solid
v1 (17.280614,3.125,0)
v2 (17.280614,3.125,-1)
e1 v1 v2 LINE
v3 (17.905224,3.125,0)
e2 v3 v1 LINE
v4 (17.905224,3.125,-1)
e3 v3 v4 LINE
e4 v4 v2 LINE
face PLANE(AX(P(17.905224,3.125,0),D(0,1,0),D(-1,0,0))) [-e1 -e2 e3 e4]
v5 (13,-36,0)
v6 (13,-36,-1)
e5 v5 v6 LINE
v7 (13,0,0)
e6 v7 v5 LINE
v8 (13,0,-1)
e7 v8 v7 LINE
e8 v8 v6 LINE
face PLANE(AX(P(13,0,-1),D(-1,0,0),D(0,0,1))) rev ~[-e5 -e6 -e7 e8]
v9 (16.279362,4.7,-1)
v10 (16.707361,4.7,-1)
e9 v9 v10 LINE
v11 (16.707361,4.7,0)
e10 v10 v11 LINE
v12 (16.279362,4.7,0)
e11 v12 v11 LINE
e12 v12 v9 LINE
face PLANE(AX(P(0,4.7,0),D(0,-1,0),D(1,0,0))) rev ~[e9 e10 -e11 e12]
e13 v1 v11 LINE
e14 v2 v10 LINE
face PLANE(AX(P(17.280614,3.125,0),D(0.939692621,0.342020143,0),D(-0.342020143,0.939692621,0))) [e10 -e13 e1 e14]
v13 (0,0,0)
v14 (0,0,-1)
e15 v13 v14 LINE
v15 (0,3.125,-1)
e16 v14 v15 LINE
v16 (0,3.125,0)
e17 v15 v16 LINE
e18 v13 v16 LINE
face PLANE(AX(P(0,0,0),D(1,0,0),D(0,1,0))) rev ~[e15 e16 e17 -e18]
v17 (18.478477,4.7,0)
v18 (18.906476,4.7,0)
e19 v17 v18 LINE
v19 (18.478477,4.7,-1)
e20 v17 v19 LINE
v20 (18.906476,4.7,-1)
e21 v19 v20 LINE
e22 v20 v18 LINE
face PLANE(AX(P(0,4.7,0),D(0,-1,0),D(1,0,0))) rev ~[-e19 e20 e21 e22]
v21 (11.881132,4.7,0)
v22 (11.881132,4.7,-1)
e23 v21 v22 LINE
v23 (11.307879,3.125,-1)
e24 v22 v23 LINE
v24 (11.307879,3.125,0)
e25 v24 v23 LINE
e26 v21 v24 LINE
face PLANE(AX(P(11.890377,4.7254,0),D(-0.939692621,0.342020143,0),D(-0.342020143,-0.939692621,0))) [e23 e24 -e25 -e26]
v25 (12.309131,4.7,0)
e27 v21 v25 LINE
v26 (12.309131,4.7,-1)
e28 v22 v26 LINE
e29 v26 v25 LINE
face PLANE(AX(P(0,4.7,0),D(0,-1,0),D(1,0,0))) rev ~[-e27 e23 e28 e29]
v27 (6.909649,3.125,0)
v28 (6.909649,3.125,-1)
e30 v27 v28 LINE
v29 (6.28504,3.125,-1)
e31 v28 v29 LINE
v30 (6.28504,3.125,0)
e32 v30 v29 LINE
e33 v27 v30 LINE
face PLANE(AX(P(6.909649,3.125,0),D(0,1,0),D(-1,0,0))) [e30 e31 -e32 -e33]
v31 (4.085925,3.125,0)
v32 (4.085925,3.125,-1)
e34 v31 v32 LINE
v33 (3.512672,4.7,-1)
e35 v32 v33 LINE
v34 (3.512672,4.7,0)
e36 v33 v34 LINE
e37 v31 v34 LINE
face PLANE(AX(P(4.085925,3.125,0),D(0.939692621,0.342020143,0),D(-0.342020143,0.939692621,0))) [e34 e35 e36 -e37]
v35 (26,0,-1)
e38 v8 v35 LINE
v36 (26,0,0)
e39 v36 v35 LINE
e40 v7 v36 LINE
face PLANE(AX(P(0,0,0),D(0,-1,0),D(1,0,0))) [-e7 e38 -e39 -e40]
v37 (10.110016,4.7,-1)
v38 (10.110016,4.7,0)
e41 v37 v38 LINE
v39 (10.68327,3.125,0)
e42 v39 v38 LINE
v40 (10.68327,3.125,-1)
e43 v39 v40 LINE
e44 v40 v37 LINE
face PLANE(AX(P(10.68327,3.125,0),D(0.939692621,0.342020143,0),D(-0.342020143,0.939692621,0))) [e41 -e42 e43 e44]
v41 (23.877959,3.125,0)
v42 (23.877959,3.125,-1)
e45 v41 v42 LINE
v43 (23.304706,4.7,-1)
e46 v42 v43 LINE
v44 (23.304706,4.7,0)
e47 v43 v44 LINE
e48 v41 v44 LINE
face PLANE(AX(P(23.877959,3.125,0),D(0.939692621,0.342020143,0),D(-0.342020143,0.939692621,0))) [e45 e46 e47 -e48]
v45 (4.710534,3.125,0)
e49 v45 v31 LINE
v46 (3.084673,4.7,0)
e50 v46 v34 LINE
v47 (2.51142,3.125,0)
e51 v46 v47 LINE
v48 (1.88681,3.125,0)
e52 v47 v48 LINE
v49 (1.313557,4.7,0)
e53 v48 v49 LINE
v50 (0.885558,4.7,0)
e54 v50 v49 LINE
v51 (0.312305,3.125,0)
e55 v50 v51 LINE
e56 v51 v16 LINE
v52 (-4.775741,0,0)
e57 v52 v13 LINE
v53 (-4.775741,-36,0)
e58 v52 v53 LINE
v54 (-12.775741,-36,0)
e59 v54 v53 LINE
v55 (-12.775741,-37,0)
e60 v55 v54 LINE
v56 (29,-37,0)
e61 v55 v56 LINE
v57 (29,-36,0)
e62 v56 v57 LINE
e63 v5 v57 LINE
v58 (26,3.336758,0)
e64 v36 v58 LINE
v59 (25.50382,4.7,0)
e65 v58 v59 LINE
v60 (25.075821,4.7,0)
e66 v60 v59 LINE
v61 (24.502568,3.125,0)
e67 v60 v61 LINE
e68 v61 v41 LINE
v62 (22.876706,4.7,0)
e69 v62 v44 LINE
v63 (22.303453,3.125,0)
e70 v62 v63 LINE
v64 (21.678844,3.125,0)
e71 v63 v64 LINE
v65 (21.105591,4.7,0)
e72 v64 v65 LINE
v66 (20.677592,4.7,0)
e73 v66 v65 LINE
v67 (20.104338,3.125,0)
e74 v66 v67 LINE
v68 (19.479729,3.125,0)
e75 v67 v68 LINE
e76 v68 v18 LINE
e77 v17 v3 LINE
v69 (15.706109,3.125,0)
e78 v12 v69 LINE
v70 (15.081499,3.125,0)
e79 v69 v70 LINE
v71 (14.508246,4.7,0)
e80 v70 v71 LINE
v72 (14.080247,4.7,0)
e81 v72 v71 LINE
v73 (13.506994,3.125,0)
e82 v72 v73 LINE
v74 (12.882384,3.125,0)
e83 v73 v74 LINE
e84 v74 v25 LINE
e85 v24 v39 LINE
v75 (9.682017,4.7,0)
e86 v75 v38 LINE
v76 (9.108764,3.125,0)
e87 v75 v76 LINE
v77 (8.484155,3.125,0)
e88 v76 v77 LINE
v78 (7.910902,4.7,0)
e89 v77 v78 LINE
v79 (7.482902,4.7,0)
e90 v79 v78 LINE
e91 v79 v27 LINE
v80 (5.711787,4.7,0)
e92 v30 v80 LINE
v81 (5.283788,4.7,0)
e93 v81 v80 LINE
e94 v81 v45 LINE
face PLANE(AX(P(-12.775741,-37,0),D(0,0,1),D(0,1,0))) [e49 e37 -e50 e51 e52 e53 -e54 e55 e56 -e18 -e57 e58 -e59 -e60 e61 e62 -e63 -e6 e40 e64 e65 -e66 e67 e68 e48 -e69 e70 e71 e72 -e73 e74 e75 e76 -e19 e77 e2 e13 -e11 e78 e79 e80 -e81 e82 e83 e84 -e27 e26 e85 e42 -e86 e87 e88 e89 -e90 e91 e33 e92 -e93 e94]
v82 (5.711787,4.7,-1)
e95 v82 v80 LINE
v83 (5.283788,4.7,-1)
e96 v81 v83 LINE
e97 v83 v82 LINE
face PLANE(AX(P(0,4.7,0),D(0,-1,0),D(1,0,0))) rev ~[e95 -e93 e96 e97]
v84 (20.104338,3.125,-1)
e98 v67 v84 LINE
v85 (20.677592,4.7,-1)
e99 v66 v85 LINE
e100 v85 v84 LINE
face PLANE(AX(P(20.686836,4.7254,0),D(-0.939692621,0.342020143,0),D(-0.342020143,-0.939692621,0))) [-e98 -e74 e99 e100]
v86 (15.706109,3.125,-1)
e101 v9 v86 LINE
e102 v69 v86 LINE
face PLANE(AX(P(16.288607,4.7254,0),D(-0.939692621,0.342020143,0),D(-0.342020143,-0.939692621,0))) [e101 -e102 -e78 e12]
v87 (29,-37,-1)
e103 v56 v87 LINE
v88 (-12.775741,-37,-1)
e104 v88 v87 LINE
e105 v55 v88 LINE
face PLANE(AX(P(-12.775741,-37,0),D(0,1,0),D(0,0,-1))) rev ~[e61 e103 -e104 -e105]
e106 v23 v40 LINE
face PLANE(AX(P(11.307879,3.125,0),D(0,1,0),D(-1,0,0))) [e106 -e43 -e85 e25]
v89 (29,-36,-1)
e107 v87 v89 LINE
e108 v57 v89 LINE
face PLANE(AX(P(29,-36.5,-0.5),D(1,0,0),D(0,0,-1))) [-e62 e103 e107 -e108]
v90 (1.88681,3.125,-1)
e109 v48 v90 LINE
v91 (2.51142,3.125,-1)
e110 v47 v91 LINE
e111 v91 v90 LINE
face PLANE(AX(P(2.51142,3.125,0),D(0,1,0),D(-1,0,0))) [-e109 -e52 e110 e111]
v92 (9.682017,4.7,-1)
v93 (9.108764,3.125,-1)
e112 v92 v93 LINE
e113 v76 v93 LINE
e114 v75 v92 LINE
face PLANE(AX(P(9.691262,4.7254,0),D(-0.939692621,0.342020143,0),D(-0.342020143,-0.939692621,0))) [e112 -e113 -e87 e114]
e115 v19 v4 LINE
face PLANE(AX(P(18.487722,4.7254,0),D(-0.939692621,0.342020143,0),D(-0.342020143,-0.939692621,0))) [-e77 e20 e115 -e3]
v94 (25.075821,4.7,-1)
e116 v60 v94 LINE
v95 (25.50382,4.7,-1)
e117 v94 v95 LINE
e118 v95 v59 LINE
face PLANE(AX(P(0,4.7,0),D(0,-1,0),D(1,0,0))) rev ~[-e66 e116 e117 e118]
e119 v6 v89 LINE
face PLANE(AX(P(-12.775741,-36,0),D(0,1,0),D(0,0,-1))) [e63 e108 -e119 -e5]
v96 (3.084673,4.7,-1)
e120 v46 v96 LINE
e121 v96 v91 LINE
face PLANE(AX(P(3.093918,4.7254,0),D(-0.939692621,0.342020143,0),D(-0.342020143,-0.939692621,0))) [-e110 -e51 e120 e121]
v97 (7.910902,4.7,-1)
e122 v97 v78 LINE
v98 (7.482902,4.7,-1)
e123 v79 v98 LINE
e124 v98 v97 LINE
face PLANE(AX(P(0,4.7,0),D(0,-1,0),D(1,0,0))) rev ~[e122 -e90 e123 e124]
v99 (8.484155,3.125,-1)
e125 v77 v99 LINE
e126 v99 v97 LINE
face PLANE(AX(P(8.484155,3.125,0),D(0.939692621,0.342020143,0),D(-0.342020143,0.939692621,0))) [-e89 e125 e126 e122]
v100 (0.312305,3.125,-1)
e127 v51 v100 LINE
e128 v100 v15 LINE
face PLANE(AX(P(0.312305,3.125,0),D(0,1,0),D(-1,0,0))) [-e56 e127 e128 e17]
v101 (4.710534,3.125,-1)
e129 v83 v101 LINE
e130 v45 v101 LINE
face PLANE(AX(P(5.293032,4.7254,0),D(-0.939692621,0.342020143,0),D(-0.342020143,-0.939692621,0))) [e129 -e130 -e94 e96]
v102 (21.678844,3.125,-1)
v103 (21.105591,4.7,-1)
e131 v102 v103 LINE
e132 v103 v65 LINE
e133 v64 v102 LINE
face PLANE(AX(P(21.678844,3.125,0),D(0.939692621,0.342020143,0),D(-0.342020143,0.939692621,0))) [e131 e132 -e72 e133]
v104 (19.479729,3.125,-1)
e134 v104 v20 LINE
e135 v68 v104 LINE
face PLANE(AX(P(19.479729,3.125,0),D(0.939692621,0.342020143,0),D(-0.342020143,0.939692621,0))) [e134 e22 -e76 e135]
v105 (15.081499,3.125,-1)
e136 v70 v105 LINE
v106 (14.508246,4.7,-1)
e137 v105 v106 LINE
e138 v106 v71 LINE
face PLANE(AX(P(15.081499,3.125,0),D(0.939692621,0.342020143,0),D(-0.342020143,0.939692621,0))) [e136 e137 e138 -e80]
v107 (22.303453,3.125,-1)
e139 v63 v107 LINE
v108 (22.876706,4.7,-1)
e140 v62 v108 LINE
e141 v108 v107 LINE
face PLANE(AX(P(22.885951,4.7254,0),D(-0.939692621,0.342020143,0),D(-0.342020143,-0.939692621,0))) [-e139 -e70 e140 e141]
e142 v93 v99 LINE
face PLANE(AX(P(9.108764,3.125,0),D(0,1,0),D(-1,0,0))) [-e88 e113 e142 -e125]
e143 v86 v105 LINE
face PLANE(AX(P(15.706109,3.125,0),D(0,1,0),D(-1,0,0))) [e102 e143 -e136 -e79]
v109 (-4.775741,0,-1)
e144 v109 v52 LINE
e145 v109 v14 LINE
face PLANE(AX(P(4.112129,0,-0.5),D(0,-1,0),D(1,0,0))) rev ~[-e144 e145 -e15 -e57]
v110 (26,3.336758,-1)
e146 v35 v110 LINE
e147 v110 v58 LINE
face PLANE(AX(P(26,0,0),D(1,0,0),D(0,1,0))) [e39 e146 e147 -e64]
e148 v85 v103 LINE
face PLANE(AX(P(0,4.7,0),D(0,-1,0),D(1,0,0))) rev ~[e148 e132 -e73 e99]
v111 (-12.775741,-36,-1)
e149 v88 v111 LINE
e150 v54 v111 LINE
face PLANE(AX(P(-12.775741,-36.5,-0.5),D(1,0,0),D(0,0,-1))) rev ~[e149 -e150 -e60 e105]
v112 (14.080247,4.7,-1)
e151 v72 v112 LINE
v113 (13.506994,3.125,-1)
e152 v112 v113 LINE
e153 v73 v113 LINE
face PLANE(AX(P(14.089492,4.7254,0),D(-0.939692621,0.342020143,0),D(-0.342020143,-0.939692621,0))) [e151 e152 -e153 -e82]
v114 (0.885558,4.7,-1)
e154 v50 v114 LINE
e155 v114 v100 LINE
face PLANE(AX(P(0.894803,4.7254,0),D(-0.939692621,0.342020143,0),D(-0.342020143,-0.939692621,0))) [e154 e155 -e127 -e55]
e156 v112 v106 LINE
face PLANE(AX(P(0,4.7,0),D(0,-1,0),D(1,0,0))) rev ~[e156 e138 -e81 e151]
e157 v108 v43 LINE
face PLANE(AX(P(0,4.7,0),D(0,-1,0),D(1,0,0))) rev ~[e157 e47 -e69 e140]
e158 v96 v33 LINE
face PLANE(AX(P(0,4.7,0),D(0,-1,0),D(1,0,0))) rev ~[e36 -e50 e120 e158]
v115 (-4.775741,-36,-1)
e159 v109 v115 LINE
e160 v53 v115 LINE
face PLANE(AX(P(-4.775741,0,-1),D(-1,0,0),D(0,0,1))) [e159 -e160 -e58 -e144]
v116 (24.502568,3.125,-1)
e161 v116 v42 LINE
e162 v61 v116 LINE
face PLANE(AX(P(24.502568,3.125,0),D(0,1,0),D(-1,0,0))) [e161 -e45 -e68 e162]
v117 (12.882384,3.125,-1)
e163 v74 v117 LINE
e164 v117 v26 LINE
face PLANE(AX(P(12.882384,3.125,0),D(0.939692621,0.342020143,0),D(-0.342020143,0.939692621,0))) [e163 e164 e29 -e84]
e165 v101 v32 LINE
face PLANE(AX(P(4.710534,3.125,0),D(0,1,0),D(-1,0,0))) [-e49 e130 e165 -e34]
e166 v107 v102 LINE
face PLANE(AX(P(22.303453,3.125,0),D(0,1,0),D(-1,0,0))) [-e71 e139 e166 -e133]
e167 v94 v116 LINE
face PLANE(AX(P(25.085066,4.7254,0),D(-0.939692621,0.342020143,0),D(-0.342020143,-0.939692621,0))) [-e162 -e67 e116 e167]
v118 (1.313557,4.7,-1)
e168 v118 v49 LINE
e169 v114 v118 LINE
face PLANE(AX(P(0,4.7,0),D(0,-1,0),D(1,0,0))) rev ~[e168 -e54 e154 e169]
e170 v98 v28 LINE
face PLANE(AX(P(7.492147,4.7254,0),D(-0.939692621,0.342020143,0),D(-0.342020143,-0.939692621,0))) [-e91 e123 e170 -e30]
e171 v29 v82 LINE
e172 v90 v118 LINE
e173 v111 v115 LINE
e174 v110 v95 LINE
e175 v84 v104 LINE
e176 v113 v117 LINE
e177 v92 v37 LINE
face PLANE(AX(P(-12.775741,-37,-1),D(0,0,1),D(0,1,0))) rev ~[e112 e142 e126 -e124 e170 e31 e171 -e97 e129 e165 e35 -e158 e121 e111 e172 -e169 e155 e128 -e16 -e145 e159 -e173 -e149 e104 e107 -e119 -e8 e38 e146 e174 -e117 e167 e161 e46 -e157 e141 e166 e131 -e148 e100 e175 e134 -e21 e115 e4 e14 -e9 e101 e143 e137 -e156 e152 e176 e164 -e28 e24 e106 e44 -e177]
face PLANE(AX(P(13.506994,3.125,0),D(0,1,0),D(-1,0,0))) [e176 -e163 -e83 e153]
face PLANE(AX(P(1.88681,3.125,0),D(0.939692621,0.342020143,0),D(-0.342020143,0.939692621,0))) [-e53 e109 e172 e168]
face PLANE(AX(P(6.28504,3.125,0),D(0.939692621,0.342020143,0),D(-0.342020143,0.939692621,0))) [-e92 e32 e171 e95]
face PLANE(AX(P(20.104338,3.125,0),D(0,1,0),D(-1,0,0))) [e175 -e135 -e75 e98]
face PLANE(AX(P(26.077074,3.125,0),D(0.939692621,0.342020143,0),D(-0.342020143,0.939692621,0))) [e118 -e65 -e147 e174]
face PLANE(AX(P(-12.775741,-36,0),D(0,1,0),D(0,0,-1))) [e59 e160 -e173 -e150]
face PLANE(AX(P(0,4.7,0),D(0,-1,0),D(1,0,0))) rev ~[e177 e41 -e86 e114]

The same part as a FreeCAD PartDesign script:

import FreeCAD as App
import Part
import Sketcher

V = App.Vector
Q = App.Units.Quantity


def add_polygon(sketch, points):
    """Adds a closed chain of lines whose ends are joined by coincident constraints."""
    first, n = sketch.GeometryCount, len(points)
    for a, b in zip(points, points[1:] + points[:1]):
        sketch.addGeometry(Part.LineSegment(App.Vector(*a, 0), App.Vector(*b, 0)), False)
    for i in range(n):
        sketch.addConstraint(Sketcher.Constraint("Coincident", first + i, 2, first + (i + 1) % n, 1))

doc = App.newDocument("Part")
body = doc.addObject("PartDesign::Body", "Body")

# Sketch on XY plane
sketch1 = body.newObject("Sketcher::SketchObject", "Sketch")
sketch1.AttachmentSupport = (doc.getObject("XY_Plane"), [""])
sketch1.MapMode = "FlatFace"
add_polygon(sketch1, [(0, 4.7), (0, 0), (26, 0), (26, 4.7)])  # lines 0-3
sketch1.addConstraint([
    Sketcher.Constraint("Vertical", 0),
    Sketcher.Constraint("Horizontal", 1),
    Sketcher.Constraint("Vertical", 2),
    Sketcher.Constraint("Horizontal", 3),
    Sketcher.Constraint("Coincident", 0, 2, -1, 1),
    Sketcher.Constraint("DistanceX", 1, 1, 1, 2, 26.0),
    Sketcher.Constraint("DistanceY", 0, 2, 0, 1, 4.7),
])
pad1 = body.newObject("PartDesign::Pad", "Pad")
pad1.Profile = sketch1
pad1.Length = 1
pad1.Reversed = True

# Sketch on XY plane
sketch2 = body.newObject("Sketcher::SketchObject", "Sketch001")
sketch2.AttachmentSupport = (doc.getObject("XY_Plane"), [""])
sketch2.MapMode = "FlatFace"
add_polygon(sketch2, [(-0.3, 3.1), (0.3, 3.1), (0.9, 4.7), (-0.9, 4.7)])  # lines 0-3
sketch2.addConstraint([
    Sketcher.Constraint("Horizontal", 0),
    Sketcher.Constraint("Horizontal", 2),
    Sketcher.Constraint("Equal", 1, 3),
    Sketcher.Constraint("Angle", 1, Q("70 deg")),
    Sketcher.Constraint("DistanceY", -1, 1, 0, 2, 3.125),
    Sketcher.Constraint("DistanceX", 0, 1, 0, 2, 0.62461),
    Sketcher.Constraint("DistanceY", -1, 1, 1, 2, 4.7254),
    Sketcher.Constraint("DistanceX", -1, 1, 0, 2, 0.312305),
])
pocket1 = body.newObject("PartDesign::Pocket", "Pocket")
pocket1.Profile = sketch2
pocket1.Type = "ThroughAll"
doc.recompute()

linearpattern = body.newObject("PartDesign::LinearPattern", "LinearPattern")
linearpattern.Originals = [pocket1]
linearpattern.Direction = (doc.getObject("X_Axis"), [""])
linearpattern.Mode = "offset"
linearpattern.Offset = 2.199115
linearpattern.Occurrences = 13
body.Tip = linearpattern

# Sketch on XZ plane
sketch3 = body.newObject("Sketcher::SketchObject", "Sketch002")
sketch3.AttachmentSupport = (doc.getObject("XZ_Plane"), [""])
sketch3.MapMode = "FlatFace"
add_polygon(sketch3, [(-4.8, 0), (-4.8, -1), (13, -1), (13, 0)])  # lines 0-3
sketch3.addConstraint([
    Sketcher.Constraint("Vertical", 0),
    Sketcher.Constraint("Horizontal", 1),
    Sketcher.Constraint("Vertical", 2),
    Sketcher.Constraint("Horizontal", 3),
    Sketcher.Constraint("PointOnObject", 2, 2, -1),
    Sketcher.Constraint("DistanceY", 0, 2, 0, 1, 1.0),
    Sketcher.Constraint("DistanceX", -1, 1, 1, 2, 13.0),
    Sketcher.Constraint("DistanceX", 1, 1, 1, 2, 17.775741),
])
pad2 = body.newObject("PartDesign::Pad", "Pad001")
pad2.Profile = sketch3
pad2.Length = 37

# Sketch on YZ plane
sketch4 = body.newObject("Sketcher::SketchObject", "Sketch003")
sketch4.AttachmentSupport = (doc.getObject("YZ_Plane"), [""])
sketch4.MapMode = "FlatFace"
sketch4.AttachmentOffset = App.Placement(V(0, 0, 13), App.Rotation())
add_polygon(sketch4, [(-36, 0), (-37, 0), (-37, -1), (-36, -1)])  # lines 0-3
sketch4.addConstraint([
    Sketcher.Constraint("Horizontal", 0),
    Sketcher.Constraint("Vertical", 1),
    Sketcher.Constraint("Horizontal", 2),
    Sketcher.Constraint("Vertical", 3),
    Sketcher.Constraint("PointOnObject", 0, 2, -1),
    Sketcher.Constraint("Equal", 2, 1),
    Sketcher.Constraint("DistanceX", 0, 2, 0, 1, 1.0),
    Sketcher.Constraint("DistanceX", 0, 2, -1, 1, 37.0),
])
pad3 = body.newObject("PartDesign::Pad", "Pad002")
pad3.Profile = sketch4
pad3.Type = "TwoLengths"
pad3.Length = 16
pad3.Length2 = 25.775741

doc.recompute()
